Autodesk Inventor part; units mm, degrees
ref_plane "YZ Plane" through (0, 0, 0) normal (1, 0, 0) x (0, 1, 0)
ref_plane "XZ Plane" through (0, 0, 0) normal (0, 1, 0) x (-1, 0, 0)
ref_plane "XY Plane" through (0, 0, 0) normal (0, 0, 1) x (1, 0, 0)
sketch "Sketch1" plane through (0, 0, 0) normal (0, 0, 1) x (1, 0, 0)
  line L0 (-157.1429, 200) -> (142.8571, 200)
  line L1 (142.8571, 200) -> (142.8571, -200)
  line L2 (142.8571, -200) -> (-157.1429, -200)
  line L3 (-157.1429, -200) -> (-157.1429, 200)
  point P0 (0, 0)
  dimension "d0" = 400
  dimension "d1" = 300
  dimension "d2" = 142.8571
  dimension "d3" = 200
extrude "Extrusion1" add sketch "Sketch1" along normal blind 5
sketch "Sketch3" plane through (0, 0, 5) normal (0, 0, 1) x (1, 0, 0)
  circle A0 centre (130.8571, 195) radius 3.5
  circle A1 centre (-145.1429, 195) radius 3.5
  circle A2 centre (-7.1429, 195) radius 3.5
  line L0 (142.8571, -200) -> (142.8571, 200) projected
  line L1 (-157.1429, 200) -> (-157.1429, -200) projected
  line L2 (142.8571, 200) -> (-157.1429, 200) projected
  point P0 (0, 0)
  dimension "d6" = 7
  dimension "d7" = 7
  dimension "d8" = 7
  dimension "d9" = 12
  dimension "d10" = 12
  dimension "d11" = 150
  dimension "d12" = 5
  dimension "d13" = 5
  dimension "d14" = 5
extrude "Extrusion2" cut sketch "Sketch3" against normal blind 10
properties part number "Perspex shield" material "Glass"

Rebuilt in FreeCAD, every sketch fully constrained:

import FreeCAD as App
import Part
import Sketcher

V = App.Vector


def add_polygon(sketch, points):
    """Adds a closed chain of lines whose ends are joined by coincident constraints."""
    first, n = sketch.GeometryCount, len(points)
    for a, b in zip(points, points[1:] + points[:1]):
        sketch.addGeometry(Part.LineSegment(App.Vector(*a, 0), App.Vector(*b, 0)), False)
    for i in range(n):
        sketch.addConstraint(Sketcher.Constraint("Coincident", first + i, 2, first + (i + 1) % n, 1))

doc = App.newDocument("Part")
params = doc.addObject("Spreadsheet::Sheet", "Params")
for row, (alias, value) in enumerate([
    ("sketch1_width", "300 mm"),
    ("sketch1_height", "400 mm"),
    ("pad1_length", "5 mm"),
    ("sketch2_diameter", "7 mm"),
    ("pocket1_length", "10 mm"),
], start=1):
    params.set(f"A{row}", alias)
    params.set(f"B{row}", "=" + value)
    params.setAlias(f"B{row}", alias)

body = doc.addObject("PartDesign::Body", "Body")

sketch1 = doc.addObject("Sketcher::SketchObject", "Sketch")
body.addObject(sketch1)
sketch1.AttachmentSupport = (doc.XY_Plane, [""])
sketch1.MapMode = "FlatFace"
add_polygon(sketch1, [(142.8571, 200), (-157.1429, 200), (-157.1429, -200), (142.8571, -200)])
sketch1.addConstraint([
    Sketcher.Constraint("Horizontal", 0),
    Sketcher.Constraint("Vertical", 1),
    Sketcher.Constraint("Horizontal", 2),
    Sketcher.Constraint("Vertical", 3),
    Sketcher.Constraint("DistanceX", 0, 2, 0, 1, 300.0),
    Sketcher.Constraint("DistanceY", 1, 2, 1, 1, 400.0),
    Sketcher.Constraint("DistanceY", -1, 1, 0, 2, 200.0),
    Sketcher.Constraint("DistanceX", -1, 1, 2, 2, 142.857),
])
sketch1.setExpression("Constraints[8]", "Params.sketch1_width")
sketch1.setExpression("Constraints[9]", "Params.sketch1_height")
pad1 = doc.addObject("PartDesign::Pad", "Pad")
body.addObject(pad1)
pad1.Profile = sketch1
pad1.setExpression("Length", "Params.pad1_length")

sketch2 = doc.addObject("Sketcher::SketchObject", "Sketch001")
body.addObject(sketch2)
sketch2.AttachmentSupport = (doc.XY_Plane, [""])
sketch2.MapMode = "FlatFace"
sketch2.AttachmentOffset = App.Placement(V(0, 0, 5), App.Rotation())
sketch2.addGeometry([
    Part.Circle(V(130.8571, 195, 0), V(0, 0, 1), 3.5),
    Part.Circle(V(-145.1429, 195, 0), V(0, 0, 1), 3.5),
    Part.Circle(V(-7.1429, 195, 0), V(0, 0, 1), 3.5),
], False)
sketch2.addConstraint([
    Sketcher.Constraint("Equal", 0, 1),
    Sketcher.Constraint("Equal", 1, 2),
    Sketcher.Constraint("Horizontal", 0, 3, 1, 3),
    Sketcher.Constraint("Horizontal", 1, 3, 2, 3),
    Sketcher.Constraint("Diameter", 0, 7.0),
    Sketcher.Constraint("DistanceY", -1, 1, 0, 3, 195.0),
    Sketcher.Constraint("DistanceX", 1, 3, 0, 3, 276.0),
    Sketcher.Constraint("DistanceX", 2, 3, 0, 3, 138.0),
    Sketcher.Constraint("DistanceX", -1, 1, 0, 3, 130.857),
])
sketch2.setExpression("Constraints[4]", "Params.sketch2_diameter")
pocket1 = doc.addObject("PartDesign::Pocket", "Pocket")
body.addObject(pocket1)
pocket1.Profile = sketch2
pocket1.setExpression("Length", "Params.pocket1_length")

doc.recompute()
